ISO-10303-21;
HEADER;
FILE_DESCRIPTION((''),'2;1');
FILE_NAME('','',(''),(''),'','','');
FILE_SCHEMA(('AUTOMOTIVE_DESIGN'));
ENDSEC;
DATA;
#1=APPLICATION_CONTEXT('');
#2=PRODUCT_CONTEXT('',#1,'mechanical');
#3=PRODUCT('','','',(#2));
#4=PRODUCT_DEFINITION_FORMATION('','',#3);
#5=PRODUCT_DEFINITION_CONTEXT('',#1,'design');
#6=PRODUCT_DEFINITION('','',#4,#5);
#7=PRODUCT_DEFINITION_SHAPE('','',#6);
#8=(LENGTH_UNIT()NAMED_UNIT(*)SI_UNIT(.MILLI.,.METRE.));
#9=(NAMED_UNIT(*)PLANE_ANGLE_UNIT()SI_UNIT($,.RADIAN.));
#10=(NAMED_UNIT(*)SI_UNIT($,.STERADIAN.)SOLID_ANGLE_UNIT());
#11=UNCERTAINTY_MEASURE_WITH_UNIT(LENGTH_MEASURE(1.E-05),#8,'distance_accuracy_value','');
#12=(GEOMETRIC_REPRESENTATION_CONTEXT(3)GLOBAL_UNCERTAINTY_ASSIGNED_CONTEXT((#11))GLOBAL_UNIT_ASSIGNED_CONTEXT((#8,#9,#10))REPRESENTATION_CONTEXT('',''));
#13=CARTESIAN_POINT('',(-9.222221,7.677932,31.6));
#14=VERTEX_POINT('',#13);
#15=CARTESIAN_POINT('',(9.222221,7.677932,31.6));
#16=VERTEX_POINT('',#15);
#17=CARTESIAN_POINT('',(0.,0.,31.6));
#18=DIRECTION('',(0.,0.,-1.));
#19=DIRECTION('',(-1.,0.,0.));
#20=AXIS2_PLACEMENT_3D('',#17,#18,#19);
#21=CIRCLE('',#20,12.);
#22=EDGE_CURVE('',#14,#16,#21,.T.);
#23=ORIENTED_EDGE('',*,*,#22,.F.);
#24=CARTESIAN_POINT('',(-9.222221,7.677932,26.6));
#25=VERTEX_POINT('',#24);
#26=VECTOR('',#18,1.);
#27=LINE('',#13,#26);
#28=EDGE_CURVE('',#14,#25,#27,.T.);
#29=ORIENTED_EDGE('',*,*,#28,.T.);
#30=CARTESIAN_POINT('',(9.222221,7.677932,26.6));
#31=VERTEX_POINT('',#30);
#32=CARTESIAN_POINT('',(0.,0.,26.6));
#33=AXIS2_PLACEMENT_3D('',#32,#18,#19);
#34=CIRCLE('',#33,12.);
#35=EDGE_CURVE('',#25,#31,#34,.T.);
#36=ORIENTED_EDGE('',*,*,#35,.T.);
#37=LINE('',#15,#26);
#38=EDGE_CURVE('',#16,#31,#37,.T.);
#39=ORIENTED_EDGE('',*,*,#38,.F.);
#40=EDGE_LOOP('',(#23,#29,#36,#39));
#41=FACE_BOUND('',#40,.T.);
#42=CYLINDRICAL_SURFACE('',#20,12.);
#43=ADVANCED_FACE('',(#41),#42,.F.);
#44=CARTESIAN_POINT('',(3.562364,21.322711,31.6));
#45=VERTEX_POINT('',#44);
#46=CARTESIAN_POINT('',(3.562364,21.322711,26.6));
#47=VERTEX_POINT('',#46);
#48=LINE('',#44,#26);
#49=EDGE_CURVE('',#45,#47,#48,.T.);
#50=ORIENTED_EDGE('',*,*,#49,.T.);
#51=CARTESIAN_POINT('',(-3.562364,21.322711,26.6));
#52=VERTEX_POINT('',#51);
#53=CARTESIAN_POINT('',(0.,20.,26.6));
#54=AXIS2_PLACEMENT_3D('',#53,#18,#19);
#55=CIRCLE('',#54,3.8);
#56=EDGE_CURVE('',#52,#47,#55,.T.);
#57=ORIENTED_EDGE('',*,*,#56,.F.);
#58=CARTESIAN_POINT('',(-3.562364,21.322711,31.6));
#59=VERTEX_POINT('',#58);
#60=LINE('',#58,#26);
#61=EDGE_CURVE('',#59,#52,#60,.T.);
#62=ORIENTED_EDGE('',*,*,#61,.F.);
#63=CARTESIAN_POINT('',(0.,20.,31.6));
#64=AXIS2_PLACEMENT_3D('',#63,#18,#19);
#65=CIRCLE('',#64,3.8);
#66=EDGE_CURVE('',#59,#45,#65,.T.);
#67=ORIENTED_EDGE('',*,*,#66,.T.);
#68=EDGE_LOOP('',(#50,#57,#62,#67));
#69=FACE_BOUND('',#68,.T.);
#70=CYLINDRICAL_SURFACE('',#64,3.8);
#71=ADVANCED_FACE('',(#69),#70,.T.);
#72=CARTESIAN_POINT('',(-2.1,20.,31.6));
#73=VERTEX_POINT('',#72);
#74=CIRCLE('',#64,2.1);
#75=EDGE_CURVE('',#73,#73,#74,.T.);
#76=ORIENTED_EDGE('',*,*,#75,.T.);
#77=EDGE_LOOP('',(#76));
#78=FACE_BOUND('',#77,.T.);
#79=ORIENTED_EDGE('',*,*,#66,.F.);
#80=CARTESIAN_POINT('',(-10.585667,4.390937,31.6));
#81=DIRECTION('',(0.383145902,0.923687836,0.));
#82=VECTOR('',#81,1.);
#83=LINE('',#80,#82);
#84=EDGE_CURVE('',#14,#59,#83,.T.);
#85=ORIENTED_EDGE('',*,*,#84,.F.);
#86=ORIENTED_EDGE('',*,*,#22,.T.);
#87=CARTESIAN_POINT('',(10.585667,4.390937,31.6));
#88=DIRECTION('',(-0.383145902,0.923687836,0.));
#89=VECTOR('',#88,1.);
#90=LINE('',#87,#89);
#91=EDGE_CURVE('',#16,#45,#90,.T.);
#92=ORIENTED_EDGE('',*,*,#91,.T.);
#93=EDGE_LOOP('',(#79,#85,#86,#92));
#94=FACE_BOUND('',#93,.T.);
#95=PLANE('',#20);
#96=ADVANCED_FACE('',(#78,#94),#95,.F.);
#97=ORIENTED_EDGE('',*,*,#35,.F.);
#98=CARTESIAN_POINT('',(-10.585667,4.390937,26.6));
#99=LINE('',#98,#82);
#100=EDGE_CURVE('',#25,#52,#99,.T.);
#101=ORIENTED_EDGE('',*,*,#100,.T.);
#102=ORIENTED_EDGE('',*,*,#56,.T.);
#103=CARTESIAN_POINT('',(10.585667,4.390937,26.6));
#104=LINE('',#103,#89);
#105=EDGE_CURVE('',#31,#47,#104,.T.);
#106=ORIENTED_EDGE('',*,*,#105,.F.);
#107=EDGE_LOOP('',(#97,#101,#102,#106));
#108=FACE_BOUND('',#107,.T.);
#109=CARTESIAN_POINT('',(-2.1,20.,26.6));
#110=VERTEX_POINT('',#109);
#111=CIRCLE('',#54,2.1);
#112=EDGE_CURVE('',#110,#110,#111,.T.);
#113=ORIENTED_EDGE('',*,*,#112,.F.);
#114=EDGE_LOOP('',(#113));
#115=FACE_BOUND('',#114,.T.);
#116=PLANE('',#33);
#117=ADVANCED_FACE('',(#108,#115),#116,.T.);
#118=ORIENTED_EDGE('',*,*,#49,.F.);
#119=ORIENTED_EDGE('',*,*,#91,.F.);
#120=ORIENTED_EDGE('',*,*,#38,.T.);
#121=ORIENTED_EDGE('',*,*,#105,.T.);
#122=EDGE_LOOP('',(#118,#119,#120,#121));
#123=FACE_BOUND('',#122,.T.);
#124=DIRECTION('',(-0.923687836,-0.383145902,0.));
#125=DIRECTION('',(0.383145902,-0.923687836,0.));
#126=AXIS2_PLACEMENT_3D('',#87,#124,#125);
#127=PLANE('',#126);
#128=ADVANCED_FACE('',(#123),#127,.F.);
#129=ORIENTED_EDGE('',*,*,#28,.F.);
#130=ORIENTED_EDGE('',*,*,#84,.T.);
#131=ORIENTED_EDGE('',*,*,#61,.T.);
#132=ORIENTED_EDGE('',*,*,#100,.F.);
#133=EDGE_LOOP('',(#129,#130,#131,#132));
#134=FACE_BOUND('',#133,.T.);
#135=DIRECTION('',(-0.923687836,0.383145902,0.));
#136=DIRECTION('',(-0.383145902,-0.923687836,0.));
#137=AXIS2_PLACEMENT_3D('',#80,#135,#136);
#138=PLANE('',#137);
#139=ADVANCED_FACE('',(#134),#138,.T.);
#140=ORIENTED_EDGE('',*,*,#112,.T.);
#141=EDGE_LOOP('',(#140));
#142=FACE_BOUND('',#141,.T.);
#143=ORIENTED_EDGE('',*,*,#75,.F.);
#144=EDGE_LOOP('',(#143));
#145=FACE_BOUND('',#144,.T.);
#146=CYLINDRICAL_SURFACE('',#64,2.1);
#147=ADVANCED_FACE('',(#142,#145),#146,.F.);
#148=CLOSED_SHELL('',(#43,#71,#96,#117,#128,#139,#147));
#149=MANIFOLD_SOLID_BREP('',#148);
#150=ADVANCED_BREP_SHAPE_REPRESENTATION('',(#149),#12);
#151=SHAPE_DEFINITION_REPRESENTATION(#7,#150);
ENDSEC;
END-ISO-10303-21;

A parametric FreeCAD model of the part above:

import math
import FreeCAD as App
import Part
import Sketcher

V = App.Vector
Q = App.Units.Quantity

doc = App.newDocument("Part")
params = doc.addObject("Spreadsheet::Sheet", "Params")
for row, (alias, value) in enumerate([
    ("sketch1_radius", "12 mm"),
    ("sketch1_diameter", "4.2 mm"),
    ("sketch1_radius2", "3.8 mm"),
    ("pad1_length", "5 mm"),
], start=1):
    params.set(f"A{row}", alias)
    params.set(f"B{row}", "=" + value)
    params.setAlias(f"B{row}", alias)

body = doc.addObject("PartDesign::Body", "Body")

sketch1 = body.newObject("Sketcher::SketchObject", "Sketch")
sketch1.AttachmentSupport = (doc.getObject("XY_Plane"), [""])
sketch1.MapMode = "FlatFace"
sketch1.AttachmentOffset = App.Placement(V(0, 0, 26.6), App.Rotation())
sketch1.addGeometry([
    Part.ArcOfCircle(Part.Circle(V(0, 0, 0), V(0, 0, 1), 12), math.radians(39.778972), math.radians(140.221028)),
    Part.LineSegment(V(-9.222221, 7.677932, 0), V(-3.562364, 21.322711, 0)),
    Part.ArcOfCircle(Part.Circle(V(0, 20, 0), V(0, 0, 1), 3.8), math.radians(20.37004), math.radians(159.62996)),
    Part.LineSegment(V(3.562364, 21.322711, 0), V(9.222221, 7.677932, 0)),
    Part.Circle(V(0, 20, 0), V(0, 0, 1), 2.1),
], False)
sketch1.addConstraint([
    Sketcher.Constraint("Coincident", 0, 2, 1, 1),
    Sketcher.Constraint("Coincident", 1, 2, 2, 2),
    Sketcher.Constraint("Coincident", 2, 1, 3, 1),
    Sketcher.Constraint("Coincident", 3, 2, 0, 1),
    Sketcher.Constraint("Coincident", 0, 3, -1, 1),
    Sketcher.Constraint("Coincident", 4, 3, 2, 3),
    Sketcher.Constraint("Symmetric", 1, 2, 2, 1, -2),
    Sketcher.Constraint("Horizontal", 0, 2, 3, 2),
    Sketcher.Constraint("Radius", 0, Q("12 mm")),
    Sketcher.Constraint("Diameter", 4, Q("4.2 mm")),
    Sketcher.Constraint("Radius", 2, Q("3.8 mm")),
    Sketcher.Constraint("DistanceY", -1, 1, 2, 3, Q("20 mm")),
    Sketcher.Constraint("DistanceX", 0, 2, -1, 1, Q("9.222221 mm")),
    Sketcher.Constraint("DistanceY", -1, 1, 1, 2, Q("21.322711 mm")),
])
sketch1.setExpression("Constraints[8]", "Params.sketch1_radius")
sketch1.setExpression("Constraints[9]", "Params.sketch1_diameter")
sketch1.setExpression("Constraints[10]", "Params.sketch1_radius2")
pad1 = body.newObject("PartDesign::Pad", "Pad")
pad1.Profile = sketch1
pad1.setExpression("Length", "Params.pad1_length")

doc.recompute()
